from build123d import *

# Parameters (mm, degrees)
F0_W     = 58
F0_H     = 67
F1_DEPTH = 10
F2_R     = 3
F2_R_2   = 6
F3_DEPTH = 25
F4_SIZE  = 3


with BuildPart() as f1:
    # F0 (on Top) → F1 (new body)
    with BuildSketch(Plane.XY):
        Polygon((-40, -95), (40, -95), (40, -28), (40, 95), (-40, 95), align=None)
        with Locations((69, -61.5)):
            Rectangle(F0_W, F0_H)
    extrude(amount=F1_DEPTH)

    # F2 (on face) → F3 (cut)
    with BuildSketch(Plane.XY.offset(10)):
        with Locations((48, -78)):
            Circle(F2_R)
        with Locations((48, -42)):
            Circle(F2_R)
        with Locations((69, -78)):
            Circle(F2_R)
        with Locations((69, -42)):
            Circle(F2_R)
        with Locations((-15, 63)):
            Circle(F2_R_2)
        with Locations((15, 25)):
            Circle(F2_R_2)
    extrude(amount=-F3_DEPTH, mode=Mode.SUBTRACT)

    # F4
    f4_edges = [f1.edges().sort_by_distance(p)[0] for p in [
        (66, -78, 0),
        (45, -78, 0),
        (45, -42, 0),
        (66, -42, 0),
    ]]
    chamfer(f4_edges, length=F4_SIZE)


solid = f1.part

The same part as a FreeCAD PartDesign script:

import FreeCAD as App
import Part
import Sketcher
from FreeCAD import Vector
Q = App.Units.Quantity


def edges_at(feature, points):
    """Names of the edges that pass closest to the given points."""
    edges = feature.Shape.Edges
    near = lambda p: min(range(len(edges)), key=lambda i: edges[i].distToShape(Part.Vertex(*p))[0])
    return sorted({f"Edge{near(p) + 1}" for p in points})


def add_polygon(sketch, points):
    """Adds a closed chain of lines whose ends are joined by coincident constraints."""
    first, n = sketch.GeometryCount, len(points)
    for a, b in zip(points, points[1:] + points[:1]):
        sketch.addGeometry(Part.LineSegment(App.Vector(*a, 0), App.Vector(*b, 0)), False)
    for i in range(n):
        sketch.addConstraint(Sketcher.Constraint("Coincident", first + i, 2, first + (i + 1) % n, 1))

doc = App.newDocument("Part")
body = doc.addObject("PartDesign::Body", "Body")

sketch1 = body.newObject("Sketcher::SketchObject", "Sketch")
sketch1.AttachmentSupport = (doc.getObject("XY_Plane"), [""])
sketch1.MapMode = "FlatFace"
add_polygon(sketch1, [(-40, -95), (98, -95), (98, -28), (40, -28), (40, 95), (-40, 95)])
sketch1.addConstraint(Sketcher.Constraint("Horizontal", 0))
sketch1.addConstraint(Sketcher.Constraint("Vertical", 1))
sketch1.addConstraint(Sketcher.Constraint("Horizontal", 2))
sketch1.addConstraint(Sketcher.Constraint("Vertical", 3))
sketch1.addConstraint(Sketcher.Constraint("Horizontal", 4))
sketch1.addConstraint(Sketcher.Constraint("Vertical", 5))
sketch1.addConstraint(Sketcher.Constraint("Symmetric", 3, 2, 5, 2, -1, 1))
sketch1.addConstraint(Sketcher.Constraint("DistanceX", 0, 1, 0, 2, Q("138 mm")))
sketch1.addConstraint(Sketcher.Constraint("DistanceX", 2, 2, 2, 1, Q("58 mm")))
sketch1.addConstraint(Sketcher.Constraint("DistanceY", 1, 1, 1, 2, Q("67 mm")))
sketch1.addConstraint(Sketcher.Constraint("DistanceY", 3, 1, 3, 2, Q("123 mm")))
pad1 = body.newObject("PartDesign::Pad", "Pad")
pad1.Profile = sketch1
pad1.Length = 10

sketch2 = body.newObject("Sketcher::SketchObject", "Sketch001")
sketch2.AttachmentSupport = (doc.getObject("XY_Plane"), [""])
sketch2.MapMode = "FlatFace"
sketch2.AttachmentOffset = App.Placement(Vector(0, 0, 10), App.Rotation())
sketch2.addGeometry(Part.Circle(Vector(48, -78, 0), Vector(0, 0, 1), 3), False)
sketch2.addGeometry(Part.Circle(Vector(48, -42, 0), Vector(0, 0, 1), 3), False)
sketch2.addGeometry(Part.Circle(Vector(69, -78, 0), Vector(0, 0, 1), 3), False)
sketch2.addGeometry(Part.Circle(Vector(69, -42, 0), Vector(0, 0, 1), 3), False)
sketch2.addGeometry(Part.Circle(Vector(-15, 63, 0), Vector(0, 0, 1), 6), False)
sketch2.addGeometry(Part.Circle(Vector(15, 25, 0), Vector(0, 0, 1), 6), False)
sketch2.addConstraint(Sketcher.Constraint("Equal", 0, 1))
sketch2.addConstraint(Sketcher.Constraint("Equal", 1, 2))
sketch2.addConstraint(Sketcher.Constraint("Equal", 2, 3))
sketch2.addConstraint(Sketcher.Constraint("Equal", 4, 5))
sketch2.addConstraint(Sketcher.Constraint("Horizontal", 0, 3, 2, 3))
sketch2.addConstraint(Sketcher.Constraint("Horizontal", 1, 3, 3, 3))
sketch2.addConstraint(Sketcher.Constraint("Vertical", 0, 3, 1, 3))
sketch2.addConstraint(Sketcher.Constraint("Vertical", 2, 3, 3, 3))
sketch2.addConstraint(Sketcher.Constraint("Diameter", 0, Q("6 mm")))
sketch2.addConstraint(Sketcher.Constraint("Diameter", 4, Q("12 mm")))
sketch2.addConstraint(Sketcher.Constraint("DistanceX", -1, 1, 0, 3, Q("48 mm")))
sketch2.addConstraint(Sketcher.Constraint("DistanceY", 0, 3, -1, 1, Q("78 mm")))
sketch2.addConstraint(Sketcher.Constraint("DistanceY", 1, 3, -1, 1, Q("42 mm")))
sketch2.addConstraint(Sketcher.Constraint("DistanceX", -1, 1, 2, 3, Q("69 mm")))
sketch2.addConstraint(Sketcher.Constraint("DistanceX", 4, 3, -1, 1, Q("15 mm")))
sketch2.addConstraint(Sketcher.Constraint("DistanceY", -1, 1, 4, 3, Q("63 mm")))
sketch2.addConstraint(Sketcher.Constraint("DistanceX", -1, 1, 5, 3, Q("15 mm")))
sketch2.addConstraint(Sketcher.Constraint("DistanceY", -1, 1, 5, 3, Q("25 mm")))
pocket1 = body.newObject("PartDesign::Pocket", "Pocket")
pocket1.Profile = sketch2
pocket1.Length = 25
doc.recompute()

chamfer = body.newObject("PartDesign::Chamfer", "Chamfer")
chamfer.Base = (pocket1, edges_at(pocket1, [
    (66, -78, 0),
    (45, -78, 0),
    (45, -42, 0),
    (66, -42, 0),
]))
chamfer.Size = 3

doc.recompute()
